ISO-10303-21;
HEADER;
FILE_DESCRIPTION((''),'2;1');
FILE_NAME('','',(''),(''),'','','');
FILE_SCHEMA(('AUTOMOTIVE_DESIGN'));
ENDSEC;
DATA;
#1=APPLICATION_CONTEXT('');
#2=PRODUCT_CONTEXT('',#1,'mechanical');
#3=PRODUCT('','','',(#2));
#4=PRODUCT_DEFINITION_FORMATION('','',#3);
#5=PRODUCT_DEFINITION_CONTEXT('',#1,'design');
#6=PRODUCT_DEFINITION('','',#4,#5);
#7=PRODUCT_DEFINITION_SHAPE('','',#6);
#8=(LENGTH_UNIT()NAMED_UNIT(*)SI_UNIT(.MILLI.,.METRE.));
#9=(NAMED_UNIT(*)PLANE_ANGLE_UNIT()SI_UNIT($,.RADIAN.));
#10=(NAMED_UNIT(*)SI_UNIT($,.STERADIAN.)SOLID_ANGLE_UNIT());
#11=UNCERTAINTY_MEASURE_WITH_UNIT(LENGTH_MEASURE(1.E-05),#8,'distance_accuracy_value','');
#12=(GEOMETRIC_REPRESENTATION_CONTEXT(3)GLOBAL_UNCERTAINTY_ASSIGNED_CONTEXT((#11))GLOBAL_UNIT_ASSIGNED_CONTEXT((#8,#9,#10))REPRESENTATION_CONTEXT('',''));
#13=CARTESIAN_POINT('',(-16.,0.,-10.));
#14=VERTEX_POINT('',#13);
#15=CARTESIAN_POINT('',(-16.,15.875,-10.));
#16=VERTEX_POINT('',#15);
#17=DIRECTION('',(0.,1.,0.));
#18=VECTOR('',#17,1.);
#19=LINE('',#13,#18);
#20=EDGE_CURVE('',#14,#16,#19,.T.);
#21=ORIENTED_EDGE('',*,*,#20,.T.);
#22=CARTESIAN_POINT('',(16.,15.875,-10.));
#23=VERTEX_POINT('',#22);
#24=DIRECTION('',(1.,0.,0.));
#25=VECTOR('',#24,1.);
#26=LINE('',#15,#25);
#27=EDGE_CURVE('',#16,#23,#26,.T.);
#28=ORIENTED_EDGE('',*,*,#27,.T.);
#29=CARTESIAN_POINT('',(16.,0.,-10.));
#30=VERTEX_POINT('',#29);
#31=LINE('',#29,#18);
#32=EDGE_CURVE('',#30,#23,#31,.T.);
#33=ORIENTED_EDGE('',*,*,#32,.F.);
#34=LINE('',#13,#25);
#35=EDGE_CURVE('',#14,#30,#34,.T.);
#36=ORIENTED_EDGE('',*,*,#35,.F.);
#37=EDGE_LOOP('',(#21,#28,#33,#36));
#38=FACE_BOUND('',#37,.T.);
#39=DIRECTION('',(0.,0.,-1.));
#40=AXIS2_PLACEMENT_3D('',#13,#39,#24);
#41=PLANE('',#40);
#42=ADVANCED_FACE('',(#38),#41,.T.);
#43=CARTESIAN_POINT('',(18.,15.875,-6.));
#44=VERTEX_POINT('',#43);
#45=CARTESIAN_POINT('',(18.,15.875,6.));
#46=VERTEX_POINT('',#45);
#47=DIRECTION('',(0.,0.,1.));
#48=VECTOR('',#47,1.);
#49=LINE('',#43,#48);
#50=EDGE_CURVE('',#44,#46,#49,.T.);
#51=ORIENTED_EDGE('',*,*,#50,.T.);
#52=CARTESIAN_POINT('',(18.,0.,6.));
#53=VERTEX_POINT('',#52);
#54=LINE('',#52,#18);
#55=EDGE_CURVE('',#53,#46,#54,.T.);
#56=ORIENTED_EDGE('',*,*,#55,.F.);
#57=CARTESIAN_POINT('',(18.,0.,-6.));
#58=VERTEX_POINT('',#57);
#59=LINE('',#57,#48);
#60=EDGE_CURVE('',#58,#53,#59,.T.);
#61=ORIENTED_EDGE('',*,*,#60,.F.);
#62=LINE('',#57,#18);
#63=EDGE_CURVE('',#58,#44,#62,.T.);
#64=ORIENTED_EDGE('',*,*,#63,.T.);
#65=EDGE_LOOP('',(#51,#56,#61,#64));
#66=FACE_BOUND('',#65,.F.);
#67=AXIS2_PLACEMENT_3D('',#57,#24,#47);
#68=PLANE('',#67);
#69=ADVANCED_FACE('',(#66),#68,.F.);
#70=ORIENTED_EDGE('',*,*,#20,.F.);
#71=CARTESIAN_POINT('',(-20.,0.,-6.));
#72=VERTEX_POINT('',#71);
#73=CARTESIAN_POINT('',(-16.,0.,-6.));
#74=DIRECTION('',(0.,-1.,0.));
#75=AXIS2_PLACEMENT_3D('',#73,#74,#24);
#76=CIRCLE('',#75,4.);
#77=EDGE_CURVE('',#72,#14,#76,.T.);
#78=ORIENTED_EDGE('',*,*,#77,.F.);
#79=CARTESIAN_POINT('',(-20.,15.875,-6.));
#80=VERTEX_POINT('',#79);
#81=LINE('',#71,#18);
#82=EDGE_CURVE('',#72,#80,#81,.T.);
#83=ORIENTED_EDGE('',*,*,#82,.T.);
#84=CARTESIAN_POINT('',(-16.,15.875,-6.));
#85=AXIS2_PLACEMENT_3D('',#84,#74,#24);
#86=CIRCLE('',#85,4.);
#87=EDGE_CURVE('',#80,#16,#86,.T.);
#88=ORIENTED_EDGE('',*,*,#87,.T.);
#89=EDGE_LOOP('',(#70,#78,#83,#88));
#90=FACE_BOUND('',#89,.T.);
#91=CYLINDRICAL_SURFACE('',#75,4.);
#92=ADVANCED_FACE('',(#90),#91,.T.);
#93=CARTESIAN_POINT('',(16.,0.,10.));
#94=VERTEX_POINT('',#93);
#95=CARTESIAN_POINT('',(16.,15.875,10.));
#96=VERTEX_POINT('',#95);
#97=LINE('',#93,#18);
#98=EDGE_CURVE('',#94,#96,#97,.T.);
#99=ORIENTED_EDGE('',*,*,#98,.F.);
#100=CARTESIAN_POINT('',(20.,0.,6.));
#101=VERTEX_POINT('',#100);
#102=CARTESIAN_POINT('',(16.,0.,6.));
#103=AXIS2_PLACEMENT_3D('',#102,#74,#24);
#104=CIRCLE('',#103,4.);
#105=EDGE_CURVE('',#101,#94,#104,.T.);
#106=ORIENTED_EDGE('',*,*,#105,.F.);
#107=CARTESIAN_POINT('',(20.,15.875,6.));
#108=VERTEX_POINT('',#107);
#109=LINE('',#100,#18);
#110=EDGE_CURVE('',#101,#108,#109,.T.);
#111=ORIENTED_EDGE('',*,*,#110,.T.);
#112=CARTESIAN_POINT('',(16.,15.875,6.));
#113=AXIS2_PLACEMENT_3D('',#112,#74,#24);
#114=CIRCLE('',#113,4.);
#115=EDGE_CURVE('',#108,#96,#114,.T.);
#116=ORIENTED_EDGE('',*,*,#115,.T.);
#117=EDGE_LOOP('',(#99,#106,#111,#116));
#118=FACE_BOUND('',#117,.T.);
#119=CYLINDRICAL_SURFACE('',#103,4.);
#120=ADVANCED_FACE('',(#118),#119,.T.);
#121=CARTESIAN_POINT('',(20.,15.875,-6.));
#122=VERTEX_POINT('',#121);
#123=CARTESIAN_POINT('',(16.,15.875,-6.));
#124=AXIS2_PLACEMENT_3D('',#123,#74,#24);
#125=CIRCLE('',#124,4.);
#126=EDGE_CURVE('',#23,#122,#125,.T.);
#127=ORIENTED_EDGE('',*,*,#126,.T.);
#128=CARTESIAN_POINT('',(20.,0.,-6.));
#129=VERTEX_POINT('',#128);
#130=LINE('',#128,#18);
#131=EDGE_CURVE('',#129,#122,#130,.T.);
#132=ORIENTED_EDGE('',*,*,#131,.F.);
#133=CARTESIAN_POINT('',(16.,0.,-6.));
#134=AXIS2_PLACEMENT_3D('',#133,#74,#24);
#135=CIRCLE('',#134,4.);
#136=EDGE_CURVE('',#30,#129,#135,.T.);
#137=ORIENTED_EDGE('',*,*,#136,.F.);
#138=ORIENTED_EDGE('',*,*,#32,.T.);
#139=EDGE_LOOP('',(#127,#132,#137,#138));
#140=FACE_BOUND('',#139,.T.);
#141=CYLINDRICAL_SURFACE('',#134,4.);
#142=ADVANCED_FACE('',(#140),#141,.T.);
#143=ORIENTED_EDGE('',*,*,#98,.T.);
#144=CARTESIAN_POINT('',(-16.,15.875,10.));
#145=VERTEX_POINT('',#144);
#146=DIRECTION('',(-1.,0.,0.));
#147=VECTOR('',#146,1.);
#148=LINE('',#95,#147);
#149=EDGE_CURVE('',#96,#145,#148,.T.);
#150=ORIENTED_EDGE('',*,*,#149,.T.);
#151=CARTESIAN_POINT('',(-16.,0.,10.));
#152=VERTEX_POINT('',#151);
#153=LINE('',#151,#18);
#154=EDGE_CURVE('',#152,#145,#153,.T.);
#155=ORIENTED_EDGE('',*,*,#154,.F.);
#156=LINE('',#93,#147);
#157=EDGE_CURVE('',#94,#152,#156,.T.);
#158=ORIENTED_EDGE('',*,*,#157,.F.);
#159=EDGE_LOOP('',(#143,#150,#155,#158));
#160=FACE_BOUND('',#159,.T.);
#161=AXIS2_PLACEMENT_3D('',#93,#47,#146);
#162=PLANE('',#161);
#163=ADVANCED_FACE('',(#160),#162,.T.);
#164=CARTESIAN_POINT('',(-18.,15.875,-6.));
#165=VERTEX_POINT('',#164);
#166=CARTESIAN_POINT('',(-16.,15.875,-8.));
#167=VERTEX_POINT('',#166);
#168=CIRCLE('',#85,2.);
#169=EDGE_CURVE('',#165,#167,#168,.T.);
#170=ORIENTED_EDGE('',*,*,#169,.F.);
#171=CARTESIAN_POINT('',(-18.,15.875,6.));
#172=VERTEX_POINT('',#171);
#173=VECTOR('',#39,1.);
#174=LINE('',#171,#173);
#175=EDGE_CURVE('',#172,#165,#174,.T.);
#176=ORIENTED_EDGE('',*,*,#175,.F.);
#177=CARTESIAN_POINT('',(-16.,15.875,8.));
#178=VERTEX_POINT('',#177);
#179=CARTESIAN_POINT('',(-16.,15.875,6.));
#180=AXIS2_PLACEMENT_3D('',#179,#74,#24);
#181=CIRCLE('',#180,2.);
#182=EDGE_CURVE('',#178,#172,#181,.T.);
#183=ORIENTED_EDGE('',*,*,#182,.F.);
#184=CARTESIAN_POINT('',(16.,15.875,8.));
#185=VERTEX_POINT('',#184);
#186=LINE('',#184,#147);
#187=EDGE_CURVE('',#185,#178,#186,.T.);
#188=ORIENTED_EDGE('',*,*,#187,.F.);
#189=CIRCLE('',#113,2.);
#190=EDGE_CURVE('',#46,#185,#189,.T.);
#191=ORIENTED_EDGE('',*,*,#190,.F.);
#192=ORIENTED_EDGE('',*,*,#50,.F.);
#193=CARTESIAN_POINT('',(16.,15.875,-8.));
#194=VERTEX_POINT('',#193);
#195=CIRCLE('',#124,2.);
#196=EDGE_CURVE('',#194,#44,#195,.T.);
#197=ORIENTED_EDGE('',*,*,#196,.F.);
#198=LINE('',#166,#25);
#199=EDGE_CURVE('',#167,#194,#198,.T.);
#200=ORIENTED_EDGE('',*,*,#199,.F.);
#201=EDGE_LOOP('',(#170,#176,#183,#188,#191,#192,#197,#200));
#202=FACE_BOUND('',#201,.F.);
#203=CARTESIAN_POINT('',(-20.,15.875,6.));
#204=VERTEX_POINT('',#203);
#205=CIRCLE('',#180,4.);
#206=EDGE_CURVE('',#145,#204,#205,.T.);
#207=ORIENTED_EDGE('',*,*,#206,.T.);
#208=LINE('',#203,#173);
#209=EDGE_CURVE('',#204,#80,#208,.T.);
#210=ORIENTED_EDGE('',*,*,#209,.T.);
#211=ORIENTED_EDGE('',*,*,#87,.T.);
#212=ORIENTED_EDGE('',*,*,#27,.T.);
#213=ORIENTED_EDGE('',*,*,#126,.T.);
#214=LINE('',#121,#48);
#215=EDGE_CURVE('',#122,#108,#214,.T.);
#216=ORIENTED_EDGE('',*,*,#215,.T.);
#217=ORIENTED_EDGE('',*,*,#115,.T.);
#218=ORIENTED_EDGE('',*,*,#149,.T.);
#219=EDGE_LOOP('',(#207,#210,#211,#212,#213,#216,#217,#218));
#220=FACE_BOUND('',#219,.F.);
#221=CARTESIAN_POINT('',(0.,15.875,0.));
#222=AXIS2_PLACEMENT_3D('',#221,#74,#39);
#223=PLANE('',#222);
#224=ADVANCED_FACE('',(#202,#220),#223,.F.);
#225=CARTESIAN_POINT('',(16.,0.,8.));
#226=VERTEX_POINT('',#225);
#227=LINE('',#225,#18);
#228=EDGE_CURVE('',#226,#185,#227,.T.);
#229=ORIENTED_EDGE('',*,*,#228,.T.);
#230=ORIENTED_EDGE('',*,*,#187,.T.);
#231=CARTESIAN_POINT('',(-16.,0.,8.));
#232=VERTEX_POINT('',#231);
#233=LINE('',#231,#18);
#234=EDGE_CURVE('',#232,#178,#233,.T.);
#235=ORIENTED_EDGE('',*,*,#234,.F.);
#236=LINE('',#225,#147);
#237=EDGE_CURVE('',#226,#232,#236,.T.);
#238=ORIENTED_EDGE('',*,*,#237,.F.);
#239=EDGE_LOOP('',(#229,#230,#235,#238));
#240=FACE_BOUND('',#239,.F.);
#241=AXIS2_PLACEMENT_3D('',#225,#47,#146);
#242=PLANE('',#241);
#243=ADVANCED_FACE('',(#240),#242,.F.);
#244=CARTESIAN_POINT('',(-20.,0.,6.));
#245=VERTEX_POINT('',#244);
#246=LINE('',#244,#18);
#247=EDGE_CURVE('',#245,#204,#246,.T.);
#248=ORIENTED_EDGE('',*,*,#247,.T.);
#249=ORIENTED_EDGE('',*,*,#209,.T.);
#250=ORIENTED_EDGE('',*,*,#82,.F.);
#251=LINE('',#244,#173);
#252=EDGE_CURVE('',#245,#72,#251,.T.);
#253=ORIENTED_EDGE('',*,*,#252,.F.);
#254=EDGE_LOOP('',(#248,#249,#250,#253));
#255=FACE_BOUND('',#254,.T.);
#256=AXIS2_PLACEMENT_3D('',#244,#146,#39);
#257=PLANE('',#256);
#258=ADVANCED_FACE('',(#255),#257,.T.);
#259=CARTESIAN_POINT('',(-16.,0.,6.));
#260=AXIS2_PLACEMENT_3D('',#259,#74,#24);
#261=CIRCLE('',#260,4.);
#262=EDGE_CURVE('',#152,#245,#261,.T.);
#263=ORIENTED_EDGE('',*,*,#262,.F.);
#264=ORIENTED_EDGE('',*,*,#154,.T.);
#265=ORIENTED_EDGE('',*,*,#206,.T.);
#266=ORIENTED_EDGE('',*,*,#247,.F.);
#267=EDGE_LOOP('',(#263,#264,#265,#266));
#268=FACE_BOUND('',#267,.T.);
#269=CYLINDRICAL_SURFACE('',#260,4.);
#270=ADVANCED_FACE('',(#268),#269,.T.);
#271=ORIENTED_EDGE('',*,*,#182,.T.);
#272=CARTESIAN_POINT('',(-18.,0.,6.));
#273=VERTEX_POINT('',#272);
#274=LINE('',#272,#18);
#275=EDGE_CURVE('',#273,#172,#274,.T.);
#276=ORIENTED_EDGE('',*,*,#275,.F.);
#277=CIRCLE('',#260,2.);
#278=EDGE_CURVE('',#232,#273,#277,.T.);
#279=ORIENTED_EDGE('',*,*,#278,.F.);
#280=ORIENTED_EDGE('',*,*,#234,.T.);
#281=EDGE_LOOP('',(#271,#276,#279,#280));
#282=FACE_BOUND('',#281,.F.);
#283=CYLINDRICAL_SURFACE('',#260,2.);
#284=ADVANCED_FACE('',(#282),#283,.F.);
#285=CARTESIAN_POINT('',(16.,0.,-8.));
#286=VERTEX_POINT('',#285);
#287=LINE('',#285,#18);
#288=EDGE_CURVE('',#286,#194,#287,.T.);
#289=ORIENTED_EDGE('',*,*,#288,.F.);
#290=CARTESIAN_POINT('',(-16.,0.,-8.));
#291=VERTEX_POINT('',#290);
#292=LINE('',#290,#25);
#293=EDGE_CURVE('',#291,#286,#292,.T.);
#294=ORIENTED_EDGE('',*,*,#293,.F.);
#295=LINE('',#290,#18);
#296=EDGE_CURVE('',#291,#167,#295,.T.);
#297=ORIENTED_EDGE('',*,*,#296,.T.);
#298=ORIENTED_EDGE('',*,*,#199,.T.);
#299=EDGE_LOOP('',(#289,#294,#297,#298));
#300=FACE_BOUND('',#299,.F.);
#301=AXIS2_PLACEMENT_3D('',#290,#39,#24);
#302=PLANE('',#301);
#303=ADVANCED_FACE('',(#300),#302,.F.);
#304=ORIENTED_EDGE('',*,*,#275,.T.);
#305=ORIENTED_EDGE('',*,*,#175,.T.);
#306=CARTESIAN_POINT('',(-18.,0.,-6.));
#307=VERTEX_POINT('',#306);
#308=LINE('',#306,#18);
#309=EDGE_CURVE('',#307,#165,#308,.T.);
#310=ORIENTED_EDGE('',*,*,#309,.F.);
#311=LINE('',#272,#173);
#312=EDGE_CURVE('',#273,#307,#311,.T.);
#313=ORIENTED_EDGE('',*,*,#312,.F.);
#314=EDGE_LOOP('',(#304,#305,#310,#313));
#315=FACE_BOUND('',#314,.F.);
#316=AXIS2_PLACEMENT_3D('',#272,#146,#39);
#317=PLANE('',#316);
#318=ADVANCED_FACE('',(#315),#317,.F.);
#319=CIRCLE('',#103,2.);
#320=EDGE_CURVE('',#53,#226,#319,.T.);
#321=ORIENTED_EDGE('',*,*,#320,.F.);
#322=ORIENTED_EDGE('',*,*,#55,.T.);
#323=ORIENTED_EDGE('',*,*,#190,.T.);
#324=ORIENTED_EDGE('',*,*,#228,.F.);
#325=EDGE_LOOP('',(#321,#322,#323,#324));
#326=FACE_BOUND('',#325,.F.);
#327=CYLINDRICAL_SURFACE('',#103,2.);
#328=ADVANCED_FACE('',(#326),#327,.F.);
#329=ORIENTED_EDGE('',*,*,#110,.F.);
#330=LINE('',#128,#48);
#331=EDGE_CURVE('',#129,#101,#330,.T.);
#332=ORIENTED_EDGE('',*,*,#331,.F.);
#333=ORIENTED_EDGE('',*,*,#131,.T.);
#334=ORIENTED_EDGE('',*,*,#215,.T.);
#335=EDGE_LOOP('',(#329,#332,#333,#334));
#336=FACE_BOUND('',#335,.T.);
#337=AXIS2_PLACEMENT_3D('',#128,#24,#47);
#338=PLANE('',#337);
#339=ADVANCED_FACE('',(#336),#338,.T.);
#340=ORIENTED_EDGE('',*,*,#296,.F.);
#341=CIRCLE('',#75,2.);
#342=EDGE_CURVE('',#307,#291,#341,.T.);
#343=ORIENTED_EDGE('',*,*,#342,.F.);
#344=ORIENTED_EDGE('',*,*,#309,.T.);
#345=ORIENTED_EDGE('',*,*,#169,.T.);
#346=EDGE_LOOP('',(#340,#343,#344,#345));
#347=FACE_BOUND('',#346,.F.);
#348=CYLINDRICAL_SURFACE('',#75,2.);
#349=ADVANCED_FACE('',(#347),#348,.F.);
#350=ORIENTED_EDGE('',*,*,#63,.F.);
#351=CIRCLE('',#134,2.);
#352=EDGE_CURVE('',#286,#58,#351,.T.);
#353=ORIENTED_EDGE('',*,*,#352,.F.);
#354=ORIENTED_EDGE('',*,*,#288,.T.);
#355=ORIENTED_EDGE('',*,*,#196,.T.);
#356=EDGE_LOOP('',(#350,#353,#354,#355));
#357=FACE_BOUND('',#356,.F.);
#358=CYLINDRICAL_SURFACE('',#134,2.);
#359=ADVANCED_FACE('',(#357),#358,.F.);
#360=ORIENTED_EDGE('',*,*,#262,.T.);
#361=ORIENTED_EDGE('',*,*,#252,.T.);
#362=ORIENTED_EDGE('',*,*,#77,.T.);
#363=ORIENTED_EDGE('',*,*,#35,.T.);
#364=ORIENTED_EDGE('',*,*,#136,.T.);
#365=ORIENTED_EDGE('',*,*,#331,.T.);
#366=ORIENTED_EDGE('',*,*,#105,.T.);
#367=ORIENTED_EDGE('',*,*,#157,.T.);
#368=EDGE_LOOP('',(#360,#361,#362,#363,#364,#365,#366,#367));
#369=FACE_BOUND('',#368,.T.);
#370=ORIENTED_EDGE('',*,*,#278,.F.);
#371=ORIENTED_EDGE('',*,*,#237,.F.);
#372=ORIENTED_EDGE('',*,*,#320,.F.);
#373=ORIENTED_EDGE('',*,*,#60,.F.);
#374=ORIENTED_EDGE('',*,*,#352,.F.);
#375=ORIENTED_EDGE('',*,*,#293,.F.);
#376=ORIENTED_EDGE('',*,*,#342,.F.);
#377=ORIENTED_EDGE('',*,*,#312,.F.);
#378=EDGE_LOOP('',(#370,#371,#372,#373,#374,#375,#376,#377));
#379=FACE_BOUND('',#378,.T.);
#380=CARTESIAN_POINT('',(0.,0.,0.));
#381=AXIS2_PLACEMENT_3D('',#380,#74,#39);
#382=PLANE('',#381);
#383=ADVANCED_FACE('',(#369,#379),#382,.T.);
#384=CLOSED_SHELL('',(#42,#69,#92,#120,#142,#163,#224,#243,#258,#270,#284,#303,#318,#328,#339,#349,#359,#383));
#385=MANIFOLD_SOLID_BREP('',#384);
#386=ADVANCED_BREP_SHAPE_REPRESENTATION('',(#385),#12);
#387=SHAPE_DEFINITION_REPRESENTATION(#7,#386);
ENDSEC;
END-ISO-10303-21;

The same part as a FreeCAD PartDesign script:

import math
import FreeCAD as App
import Part
import Sketcher
from FreeCAD import Vector
Q = App.Units.Quantity

doc = App.newDocument("Part")
params = doc.addObject("Spreadsheet::Sheet", "Params")
for row, (alias, value) in enumerate([
    ("sketch1_radius", "4 mm"),
    ("sketch1_radius2", "2 mm"),
    ("sketch1_width", "32 mm"),
    ("sketch1_height", "12 mm"),
    ("pad1_length", "15.875 mm"),
], start=1):
    params.set(f"A{row}", alias)
    params.set(f"B{row}", "=" + value)
    params.setAlias(f"B{row}", alias)

body = doc.addObject("PartDesign::Body", "Body")

# Sketch on XZ plane
sketch1 = doc.addObject("Sketcher::SketchObject", "Sketch")
body.addObject(sketch1)
sketch1.AttachmentSupport = (doc.XZ_Plane, [""])
sketch1.MapMode = "FlatFace"
sketch1.addGeometry(Part.LineSegment(Vector(16, 10, 0), Vector(-16, 10, 0)), False)
sketch1.addGeometry(Part.ArcOfCircle(Part.Circle(Vector(-16, 6, 0), Vector(0, 0, 1), 4), math.radians(90), math.radians(180)), False)
sketch1.addGeometry(Part.LineSegment(Vector(-20, 6, 0), Vector(-20, -6, 0)), False)
sketch1.addGeometry(Part.ArcOfCircle(Part.Circle(Vector(-16, -6, 0), Vector(0, 0, 1), 4), math.radians(180), math.radians(270)), False)
sketch1.addGeometry(Part.LineSegment(Vector(-16, -10, 0), Vector(16, -10, 0)), False)
sketch1.addGeometry(Part.ArcOfCircle(Part.Circle(Vector(16, -6, 0), Vector(0, 0, 1), 4), math.radians(-90), math.radians(0)), False)
sketch1.addGeometry(Part.LineSegment(Vector(20, -6, 0), Vector(20, 6, 0)), False)
sketch1.addGeometry(Part.ArcOfCircle(Part.Circle(Vector(16, 6, 0), Vector(0, 0, 1), 4), math.radians(0), math.radians(90)), False)
sketch1.addGeometry(Part.LineSegment(Vector(-16, 8, 0), Vector(16, 8, 0)), False)
sketch1.addGeometry(Part.ArcOfCircle(Part.Circle(Vector(16, 6, 0), Vector(0, 0, 1), 2), math.radians(0), math.radians(90)), False)
sketch1.addGeometry(Part.LineSegment(Vector(18, 6, 0), Vector(18, -6, 0)), False)
sketch1.addGeometry(Part.ArcOfCircle(Part.Circle(Vector(16, -6, 0), Vector(0, 0, 1), 2), math.radians(-90), math.radians(0)), False)
sketch1.addGeometry(Part.LineSegment(Vector(16, -8, 0), Vector(-16, -8, 0)), False)
sketch1.addGeometry(Part.ArcOfCircle(Part.Circle(Vector(-16, -6, 0), Vector(0, 0, 1), 2), math.radians(180), math.radians(270)), False)
sketch1.addGeometry(Part.LineSegment(Vector(-18, -6, 0), Vector(-18, 6, 0)), False)
sketch1.addGeometry(Part.ArcOfCircle(Part.Circle(Vector(-16, 6, 0), Vector(0, 0, 1), 2), math.radians(90), math.radians(180)), False)
sketch1.addConstraint(Sketcher.Constraint("Tangent", 0, 2, 1, 1))
sketch1.addConstraint(Sketcher.Constraint("Tangent", 1, 2, 2, 1))
sketch1.addConstraint(Sketcher.Constraint("Tangent", 2, 2, 3, 1))
sketch1.addConstraint(Sketcher.Constraint("Tangent", 3, 2, 4, 1))
sketch1.addConstraint(Sketcher.Constraint("Tangent", 4, 2, 5, 1))
sketch1.addConstraint(Sketcher.Constraint("Tangent", 5, 2, 6, 1))
sketch1.addConstraint(Sketcher.Constraint("Tangent", 6, 2, 7, 1))
sketch1.addConstraint(Sketcher.Constraint("Tangent", 7, 2, 0, 1))
sketch1.addConstraint(Sketcher.Constraint("Tangent", 8, 2, 9, 2))
sketch1.addConstraint(Sketcher.Constraint("Tangent", 9, 1, 10, 1))
sketch1.addConstraint(Sketcher.Constraint("Tangent", 10, 2, 11, 2))
sketch1.addConstraint(Sketcher.Constraint("Tangent", 11, 1, 12, 1))
sketch1.addConstraint(Sketcher.Constraint("Tangent", 12, 2, 13, 2))
sketch1.addConstraint(Sketcher.Constraint("Tangent", 13, 1, 14, 1))
sketch1.addConstraint(Sketcher.Constraint("Tangent", 14, 2, 15, 2))
sketch1.addConstraint(Sketcher.Constraint("Tangent", 15, 1, 8, 1))
sketch1.addConstraint(Sketcher.Constraint("Horizontal", 0))
sketch1.addConstraint(Sketcher.Constraint("Vertical", 2))
sketch1.addConstraint(Sketcher.Constraint("Horizontal", 4))
sketch1.addConstraint(Sketcher.Constraint("Vertical", 6))
sketch1.addConstraint(Sketcher.Constraint("Horizontal", 8))
sketch1.addConstraint(Sketcher.Constraint("Vertical", 10))
sketch1.addConstraint(Sketcher.Constraint("Horizontal", 12))
sketch1.addConstraint(Sketcher.Constraint("Vertical", 14))
sketch1.addConstraint(Sketcher.Constraint("Coincident", 9, 3, 7, 3))
sketch1.addConstraint(Sketcher.Constraint("Coincident", 11, 3, 5, 3))
sketch1.addConstraint(Sketcher.Constraint("Coincident", 13, 3, 3, 3))
sketch1.addConstraint(Sketcher.Constraint("Equal", 1, 3))
sketch1.addConstraint(Sketcher.Constraint("Equal", 3, 5))
sketch1.addConstraint(Sketcher.Constraint("Equal", 5, 7))
sketch1.addConstraint(Sketcher.Constraint("Equal", 13, 15))
sketch1.addConstraint(Sketcher.Constraint("Symmetric", 1, 3, 5, 3, -1, 1))
sketch1.addConstraint(Sketcher.Constraint("Radius", 1, Q("4 mm")))
sketch1.addConstraint(Sketcher.Constraint("Radius", 9, Q("2 mm")))
sketch1.addConstraint(Sketcher.Constraint("DistanceX", 0, 2, 0, 1, Q("32 mm")))
sketch1.addConstraint(Sketcher.Constraint("DistanceY", 2, 2, 2, 1, Q("12 mm")))
sketch1.setExpression("Constraints[32]", "Params.sketch1_radius")
sketch1.setExpression("Constraints[33]", "Params.sketch1_radius2")
sketch1.setExpression("Constraints[34]", "Params.sketch1_width")
sketch1.setExpression("Constraints[35]", "Params.sketch1_height")
pad1 = doc.addObject("PartDesign::Pad", "Pad")
body.addObject(pad1)
pad1.Profile = sketch1
pad1.setExpression("Length", "Params.pad1_length")
pad1.Reversed = True

doc.recompute()
